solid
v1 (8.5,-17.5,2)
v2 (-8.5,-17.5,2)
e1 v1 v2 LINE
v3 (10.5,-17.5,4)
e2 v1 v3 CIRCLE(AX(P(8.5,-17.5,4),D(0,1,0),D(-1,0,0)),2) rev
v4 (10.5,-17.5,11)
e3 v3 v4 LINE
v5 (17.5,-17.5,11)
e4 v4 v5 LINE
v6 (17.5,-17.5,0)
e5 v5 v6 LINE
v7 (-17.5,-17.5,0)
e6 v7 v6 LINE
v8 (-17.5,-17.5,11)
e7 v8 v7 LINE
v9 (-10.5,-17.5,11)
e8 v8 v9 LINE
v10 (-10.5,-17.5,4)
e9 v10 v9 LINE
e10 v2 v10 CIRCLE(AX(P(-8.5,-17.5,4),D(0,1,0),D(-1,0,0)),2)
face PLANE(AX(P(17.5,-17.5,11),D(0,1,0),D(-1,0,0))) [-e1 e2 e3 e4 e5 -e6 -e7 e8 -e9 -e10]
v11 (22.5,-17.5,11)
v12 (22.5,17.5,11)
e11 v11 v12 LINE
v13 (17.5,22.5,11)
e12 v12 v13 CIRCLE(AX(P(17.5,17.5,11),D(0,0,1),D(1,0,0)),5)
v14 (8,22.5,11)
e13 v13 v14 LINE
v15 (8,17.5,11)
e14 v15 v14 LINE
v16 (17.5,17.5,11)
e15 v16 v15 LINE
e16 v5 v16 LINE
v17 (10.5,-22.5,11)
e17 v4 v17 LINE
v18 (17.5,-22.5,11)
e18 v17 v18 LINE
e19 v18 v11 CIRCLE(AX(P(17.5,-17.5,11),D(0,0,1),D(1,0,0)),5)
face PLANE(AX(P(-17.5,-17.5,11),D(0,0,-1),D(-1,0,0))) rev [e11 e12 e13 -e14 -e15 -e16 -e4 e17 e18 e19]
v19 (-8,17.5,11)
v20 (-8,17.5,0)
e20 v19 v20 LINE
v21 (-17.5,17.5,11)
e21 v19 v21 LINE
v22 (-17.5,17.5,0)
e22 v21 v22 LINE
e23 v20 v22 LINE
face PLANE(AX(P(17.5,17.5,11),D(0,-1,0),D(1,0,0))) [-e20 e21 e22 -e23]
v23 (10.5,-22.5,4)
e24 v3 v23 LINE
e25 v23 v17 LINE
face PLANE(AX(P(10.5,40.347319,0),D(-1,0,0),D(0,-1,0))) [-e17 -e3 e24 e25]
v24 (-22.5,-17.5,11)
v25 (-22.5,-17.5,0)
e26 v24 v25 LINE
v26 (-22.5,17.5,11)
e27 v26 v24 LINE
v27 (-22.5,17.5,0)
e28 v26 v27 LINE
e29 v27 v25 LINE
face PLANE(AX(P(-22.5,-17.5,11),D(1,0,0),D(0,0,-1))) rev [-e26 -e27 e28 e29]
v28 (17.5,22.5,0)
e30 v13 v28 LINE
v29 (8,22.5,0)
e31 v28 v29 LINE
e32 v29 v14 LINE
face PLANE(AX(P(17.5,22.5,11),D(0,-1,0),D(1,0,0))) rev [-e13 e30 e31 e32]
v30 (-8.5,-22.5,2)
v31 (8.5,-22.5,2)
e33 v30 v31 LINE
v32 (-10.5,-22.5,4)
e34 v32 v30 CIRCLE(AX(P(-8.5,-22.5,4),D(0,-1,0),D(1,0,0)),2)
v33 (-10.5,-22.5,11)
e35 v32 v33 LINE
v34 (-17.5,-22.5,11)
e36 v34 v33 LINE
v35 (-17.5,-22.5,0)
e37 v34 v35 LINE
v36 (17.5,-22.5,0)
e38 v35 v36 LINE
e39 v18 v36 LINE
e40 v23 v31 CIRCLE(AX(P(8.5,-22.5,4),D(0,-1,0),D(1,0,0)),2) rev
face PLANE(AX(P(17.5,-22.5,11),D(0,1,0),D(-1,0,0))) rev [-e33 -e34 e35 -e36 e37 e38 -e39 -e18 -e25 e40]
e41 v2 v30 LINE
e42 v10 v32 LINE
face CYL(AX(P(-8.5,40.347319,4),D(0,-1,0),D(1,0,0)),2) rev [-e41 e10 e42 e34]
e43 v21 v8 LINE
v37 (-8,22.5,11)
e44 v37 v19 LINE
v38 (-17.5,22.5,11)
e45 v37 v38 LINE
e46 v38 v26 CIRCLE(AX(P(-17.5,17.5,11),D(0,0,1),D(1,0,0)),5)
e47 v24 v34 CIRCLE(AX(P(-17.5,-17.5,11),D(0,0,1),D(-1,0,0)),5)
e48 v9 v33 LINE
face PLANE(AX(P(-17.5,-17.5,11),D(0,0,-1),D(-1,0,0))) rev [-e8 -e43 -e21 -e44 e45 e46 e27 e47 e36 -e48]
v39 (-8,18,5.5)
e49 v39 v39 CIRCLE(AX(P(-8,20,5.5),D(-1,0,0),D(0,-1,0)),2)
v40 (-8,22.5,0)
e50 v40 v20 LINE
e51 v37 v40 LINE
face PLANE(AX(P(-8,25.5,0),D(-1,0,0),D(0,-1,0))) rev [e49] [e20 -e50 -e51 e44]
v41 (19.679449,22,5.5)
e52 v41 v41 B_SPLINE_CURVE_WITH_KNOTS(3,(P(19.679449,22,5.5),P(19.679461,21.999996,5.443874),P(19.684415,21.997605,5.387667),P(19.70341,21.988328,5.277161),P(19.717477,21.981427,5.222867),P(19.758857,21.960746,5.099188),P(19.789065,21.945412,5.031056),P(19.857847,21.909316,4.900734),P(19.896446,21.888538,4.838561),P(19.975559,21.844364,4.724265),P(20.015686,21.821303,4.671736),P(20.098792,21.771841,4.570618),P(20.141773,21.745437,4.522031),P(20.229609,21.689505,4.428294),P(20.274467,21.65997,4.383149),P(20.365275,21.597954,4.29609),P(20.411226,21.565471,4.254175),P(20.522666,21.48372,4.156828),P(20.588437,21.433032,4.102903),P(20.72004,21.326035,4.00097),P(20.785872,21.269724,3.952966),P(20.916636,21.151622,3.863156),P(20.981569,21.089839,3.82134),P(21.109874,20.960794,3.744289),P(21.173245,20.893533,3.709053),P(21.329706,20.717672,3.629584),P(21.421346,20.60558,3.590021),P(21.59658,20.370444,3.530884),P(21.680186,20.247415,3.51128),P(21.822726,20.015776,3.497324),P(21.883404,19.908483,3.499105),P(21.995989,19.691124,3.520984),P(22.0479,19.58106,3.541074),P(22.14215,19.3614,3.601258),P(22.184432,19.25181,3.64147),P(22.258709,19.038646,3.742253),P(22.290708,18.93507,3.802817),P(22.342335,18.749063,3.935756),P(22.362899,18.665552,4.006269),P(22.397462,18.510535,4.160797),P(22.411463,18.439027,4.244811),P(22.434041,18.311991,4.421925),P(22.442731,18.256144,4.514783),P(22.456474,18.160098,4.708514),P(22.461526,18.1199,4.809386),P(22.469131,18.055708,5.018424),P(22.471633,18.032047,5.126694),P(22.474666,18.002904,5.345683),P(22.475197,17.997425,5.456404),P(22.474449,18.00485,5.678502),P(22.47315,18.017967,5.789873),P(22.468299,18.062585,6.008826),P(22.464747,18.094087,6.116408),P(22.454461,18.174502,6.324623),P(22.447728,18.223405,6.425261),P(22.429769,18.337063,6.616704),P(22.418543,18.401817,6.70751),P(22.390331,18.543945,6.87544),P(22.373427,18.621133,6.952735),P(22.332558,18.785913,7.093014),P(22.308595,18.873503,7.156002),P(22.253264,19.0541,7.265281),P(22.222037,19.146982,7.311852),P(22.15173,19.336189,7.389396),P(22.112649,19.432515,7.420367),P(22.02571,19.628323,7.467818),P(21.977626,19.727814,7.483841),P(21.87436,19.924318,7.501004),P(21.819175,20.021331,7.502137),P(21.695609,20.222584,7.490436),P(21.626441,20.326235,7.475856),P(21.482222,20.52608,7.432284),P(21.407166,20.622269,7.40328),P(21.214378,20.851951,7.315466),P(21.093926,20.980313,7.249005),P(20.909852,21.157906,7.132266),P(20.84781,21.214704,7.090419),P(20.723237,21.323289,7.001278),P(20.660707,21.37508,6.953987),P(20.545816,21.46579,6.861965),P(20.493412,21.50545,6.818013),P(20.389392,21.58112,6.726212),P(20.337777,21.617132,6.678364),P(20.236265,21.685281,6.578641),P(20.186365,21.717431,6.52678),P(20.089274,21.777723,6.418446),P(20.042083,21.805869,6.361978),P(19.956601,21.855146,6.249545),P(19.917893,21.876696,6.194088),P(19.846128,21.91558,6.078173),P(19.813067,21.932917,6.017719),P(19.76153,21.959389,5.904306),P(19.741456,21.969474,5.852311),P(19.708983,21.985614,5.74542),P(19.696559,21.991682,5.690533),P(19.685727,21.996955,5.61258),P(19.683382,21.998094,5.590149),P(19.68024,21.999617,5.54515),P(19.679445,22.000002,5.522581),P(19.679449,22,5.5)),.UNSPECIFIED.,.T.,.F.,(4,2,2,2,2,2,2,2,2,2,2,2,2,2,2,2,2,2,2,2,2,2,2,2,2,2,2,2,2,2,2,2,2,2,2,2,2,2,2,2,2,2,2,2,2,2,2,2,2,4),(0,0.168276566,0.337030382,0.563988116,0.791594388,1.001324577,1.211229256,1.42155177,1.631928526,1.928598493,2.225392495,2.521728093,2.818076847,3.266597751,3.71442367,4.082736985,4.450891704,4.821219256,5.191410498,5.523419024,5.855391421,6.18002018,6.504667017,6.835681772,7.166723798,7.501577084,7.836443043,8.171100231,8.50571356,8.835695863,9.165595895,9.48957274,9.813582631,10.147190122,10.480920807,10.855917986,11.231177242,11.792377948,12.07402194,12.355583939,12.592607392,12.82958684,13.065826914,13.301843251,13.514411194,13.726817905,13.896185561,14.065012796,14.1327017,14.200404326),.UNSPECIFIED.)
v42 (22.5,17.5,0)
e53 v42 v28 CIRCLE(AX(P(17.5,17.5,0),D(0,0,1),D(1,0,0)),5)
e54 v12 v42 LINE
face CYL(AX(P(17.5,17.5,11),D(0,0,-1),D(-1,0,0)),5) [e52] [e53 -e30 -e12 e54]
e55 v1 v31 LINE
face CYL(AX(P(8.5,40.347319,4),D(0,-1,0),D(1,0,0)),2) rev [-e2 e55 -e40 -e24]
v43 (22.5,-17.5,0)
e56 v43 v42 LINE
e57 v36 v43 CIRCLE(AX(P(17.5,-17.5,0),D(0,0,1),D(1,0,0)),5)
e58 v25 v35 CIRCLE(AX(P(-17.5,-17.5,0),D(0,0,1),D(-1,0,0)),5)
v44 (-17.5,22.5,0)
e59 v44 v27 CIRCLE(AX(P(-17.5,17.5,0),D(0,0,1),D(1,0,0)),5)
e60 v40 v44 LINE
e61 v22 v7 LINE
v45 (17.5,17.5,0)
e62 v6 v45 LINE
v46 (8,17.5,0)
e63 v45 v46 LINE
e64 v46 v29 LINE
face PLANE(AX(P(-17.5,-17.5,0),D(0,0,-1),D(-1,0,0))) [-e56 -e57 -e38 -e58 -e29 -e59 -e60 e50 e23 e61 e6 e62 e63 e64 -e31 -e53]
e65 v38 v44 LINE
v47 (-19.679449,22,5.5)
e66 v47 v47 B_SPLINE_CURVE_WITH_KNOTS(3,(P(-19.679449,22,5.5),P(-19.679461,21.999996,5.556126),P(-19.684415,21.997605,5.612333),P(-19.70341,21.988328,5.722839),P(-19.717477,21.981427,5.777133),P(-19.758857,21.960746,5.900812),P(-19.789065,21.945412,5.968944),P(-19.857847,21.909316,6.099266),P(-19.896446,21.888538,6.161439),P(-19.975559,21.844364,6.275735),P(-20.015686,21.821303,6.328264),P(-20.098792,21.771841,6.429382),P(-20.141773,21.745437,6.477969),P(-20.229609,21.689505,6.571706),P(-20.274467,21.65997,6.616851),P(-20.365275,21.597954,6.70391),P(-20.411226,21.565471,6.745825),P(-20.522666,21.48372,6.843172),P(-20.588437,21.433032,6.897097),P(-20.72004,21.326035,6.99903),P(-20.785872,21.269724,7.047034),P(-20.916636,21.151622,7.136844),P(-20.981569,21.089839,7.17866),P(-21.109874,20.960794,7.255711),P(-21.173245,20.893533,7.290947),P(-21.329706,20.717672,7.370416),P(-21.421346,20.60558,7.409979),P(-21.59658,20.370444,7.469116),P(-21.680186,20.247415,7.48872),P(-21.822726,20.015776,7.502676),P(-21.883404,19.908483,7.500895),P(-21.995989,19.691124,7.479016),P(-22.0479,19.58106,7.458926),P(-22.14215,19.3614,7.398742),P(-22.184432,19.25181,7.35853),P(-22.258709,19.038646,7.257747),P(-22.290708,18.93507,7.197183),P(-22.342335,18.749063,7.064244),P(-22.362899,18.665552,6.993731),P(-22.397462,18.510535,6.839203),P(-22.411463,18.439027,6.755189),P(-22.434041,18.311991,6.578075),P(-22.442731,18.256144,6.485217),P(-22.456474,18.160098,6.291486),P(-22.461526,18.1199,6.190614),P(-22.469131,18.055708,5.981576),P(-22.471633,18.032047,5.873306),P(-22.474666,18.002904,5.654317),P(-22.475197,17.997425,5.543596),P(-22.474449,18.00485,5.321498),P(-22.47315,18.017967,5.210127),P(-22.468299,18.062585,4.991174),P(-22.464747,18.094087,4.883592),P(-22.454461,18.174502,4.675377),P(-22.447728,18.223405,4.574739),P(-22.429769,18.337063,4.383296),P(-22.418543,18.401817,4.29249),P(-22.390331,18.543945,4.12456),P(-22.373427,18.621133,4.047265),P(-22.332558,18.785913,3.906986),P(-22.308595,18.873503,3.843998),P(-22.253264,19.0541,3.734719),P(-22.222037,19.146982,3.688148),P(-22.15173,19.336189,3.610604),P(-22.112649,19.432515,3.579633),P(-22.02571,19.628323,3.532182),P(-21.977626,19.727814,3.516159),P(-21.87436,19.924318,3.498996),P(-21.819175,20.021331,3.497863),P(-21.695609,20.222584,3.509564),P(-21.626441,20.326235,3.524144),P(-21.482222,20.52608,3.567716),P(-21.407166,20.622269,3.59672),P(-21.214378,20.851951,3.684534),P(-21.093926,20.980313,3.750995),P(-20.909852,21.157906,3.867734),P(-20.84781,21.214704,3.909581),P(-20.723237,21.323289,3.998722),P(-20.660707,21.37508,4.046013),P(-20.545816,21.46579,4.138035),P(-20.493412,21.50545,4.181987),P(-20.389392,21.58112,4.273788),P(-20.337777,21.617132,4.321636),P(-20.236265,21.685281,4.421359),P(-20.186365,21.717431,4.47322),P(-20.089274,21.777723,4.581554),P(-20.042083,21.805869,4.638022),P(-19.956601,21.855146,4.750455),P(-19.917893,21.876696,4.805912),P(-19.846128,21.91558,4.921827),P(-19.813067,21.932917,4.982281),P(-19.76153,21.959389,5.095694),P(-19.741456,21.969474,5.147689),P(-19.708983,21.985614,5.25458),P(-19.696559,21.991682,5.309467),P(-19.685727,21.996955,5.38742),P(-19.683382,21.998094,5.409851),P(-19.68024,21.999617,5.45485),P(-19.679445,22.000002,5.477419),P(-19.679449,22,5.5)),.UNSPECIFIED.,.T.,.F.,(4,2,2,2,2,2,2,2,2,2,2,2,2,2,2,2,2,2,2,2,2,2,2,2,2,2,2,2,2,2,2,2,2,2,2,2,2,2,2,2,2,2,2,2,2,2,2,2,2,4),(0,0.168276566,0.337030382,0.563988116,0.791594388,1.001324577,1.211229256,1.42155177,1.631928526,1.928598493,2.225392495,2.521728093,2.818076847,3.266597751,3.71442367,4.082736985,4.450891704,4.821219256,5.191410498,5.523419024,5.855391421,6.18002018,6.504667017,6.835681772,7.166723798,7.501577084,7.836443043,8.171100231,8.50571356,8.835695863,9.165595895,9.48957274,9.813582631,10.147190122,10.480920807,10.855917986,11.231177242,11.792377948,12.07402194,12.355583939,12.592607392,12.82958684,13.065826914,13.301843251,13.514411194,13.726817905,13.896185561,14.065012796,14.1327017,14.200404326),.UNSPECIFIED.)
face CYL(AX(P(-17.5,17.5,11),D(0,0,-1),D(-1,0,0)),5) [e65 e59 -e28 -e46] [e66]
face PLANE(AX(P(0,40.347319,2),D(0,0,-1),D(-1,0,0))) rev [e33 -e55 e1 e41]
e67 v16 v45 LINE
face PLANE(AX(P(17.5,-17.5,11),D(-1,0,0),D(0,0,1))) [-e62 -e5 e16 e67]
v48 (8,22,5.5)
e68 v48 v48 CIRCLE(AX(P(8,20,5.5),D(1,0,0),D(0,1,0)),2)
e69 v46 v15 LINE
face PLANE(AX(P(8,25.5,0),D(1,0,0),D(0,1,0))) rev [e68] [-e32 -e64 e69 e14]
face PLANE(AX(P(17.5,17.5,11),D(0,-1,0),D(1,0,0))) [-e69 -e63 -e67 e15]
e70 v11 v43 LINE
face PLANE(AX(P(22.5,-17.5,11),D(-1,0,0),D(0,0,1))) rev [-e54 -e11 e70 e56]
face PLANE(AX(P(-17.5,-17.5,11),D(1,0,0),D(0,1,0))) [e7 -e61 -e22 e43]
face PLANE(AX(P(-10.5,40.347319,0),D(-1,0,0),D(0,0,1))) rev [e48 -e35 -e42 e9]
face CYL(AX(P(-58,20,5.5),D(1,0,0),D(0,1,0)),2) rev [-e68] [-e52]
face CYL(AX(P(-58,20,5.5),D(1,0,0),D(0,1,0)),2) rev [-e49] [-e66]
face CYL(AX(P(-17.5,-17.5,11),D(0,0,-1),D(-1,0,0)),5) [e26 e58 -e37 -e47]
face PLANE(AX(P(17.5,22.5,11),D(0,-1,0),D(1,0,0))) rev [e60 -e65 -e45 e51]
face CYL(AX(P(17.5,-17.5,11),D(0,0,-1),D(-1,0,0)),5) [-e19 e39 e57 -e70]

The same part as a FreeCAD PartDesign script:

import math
import FreeCAD as App
import Part
import Sketcher

V = App.Vector


def add_polygon(sketch, points):
    """Adds a closed chain of lines whose ends are joined by coincident constraints."""
    first, n = sketch.GeometryCount, len(points)
    for a, b in zip(points, points[1:] + points[:1]):
        sketch.addGeometry(Part.LineSegment(App.Vector(*a, 0), App.Vector(*b, 0)), False)
    for i in range(n):
        sketch.addConstraint(Sketcher.Constraint("Coincident", first + i, 2, first + (i + 1) % n, 1))

doc = App.newDocument("Part")
body = doc.addObject("PartDesign::Body", "Body")

# Sketch on XY plane
sketch1 = body.newObject("Sketcher::SketchObject", "Sketch")
sketch1.AttachmentSupport = (doc.getObject("XY_Plane"), [""])
sketch1.MapMode = "FlatFace"
sketch1.addGeometry(Part.LineSegment(V(-18, -22, 0), V(18, -22, 0)), False)  # 0
sketch1.addGeometry(Part.ArcOfCircle(Part.Circle(V(18, -18, 0), V(0, 0, 1), 5), math.radians(-90), math.radians(0)), False)  # 1
sketch1.addGeometry(Part.LineSegment(V(22, -18, 0), V(22, 18, 0)), False)  # 2
sketch1.addGeometry(Part.ArcOfCircle(Part.Circle(V(18, 18, 0), V(0, 0, 1), 5), math.radians(0), math.radians(90)), False)  # 3
sketch1.addGeometry(Part.LineSegment(V(18, 22, 0), V(-18, 22, 0)), False)  # 4
sketch1.addGeometry(Part.ArcOfCircle(Part.Circle(V(-18, 18, 0), V(0, 0, 1), 5), math.radians(90), math.radians(180)), False)  # 5
sketch1.addGeometry(Part.LineSegment(V(-22, 18, 0), V(-22, -18, 0)), False)  # 6
sketch1.addGeometry(Part.ArcOfCircle(Part.Circle(V(-18, -18, 0), V(0, 0, 1), 5), math.radians(180), math.radians(270)), False)  # 7
add_polygon(sketch1, [(-18, -18), (-18, 18), (18, 18), (18, -18)])  # lines 8-11
sketch1.addConstraint([
    Sketcher.Constraint("Tangent", 0, 2, 1, 1),
    Sketcher.Constraint("Tangent", 1, 2, 2, 1),
    Sketcher.Constraint("Tangent", 2, 2, 3, 1),
    Sketcher.Constraint("Tangent", 3, 2, 4, 1),
    Sketcher.Constraint("Tangent", 4, 2, 5, 1),
    Sketcher.Constraint("Tangent", 5, 2, 6, 1),
    Sketcher.Constraint("Tangent", 6, 2, 7, 1),
    Sketcher.Constraint("Tangent", 7, 2, 0, 1),
    Sketcher.Constraint("Horizontal", 0),
    Sketcher.Constraint("Vertical", 2),
    Sketcher.Constraint("Horizontal", 4),
    Sketcher.Constraint("Vertical", 6),
    Sketcher.Constraint("Vertical", 8),
    Sketcher.Constraint("Horizontal", 9),
    Sketcher.Constraint("Vertical", 10),
    Sketcher.Constraint("Horizontal", 11),
    Sketcher.Constraint("Coincident", 8, 2, 5, 3),
    Sketcher.Constraint("Coincident", 9, 2, 3, 3),
    Sketcher.Constraint("Coincident", 10, 2, 1, 3),
    Sketcher.Constraint("Equal", 5, 7),
    Sketcher.Constraint("Symmetric", 1, 3, 5, 3, -1, 1),
    Sketcher.Constraint("Equal", 11, 2),
    Sketcher.Constraint("Radius", 1, 5.0),
    Sketcher.Constraint("DistanceX", 0, 1, 0, 2, 35.0),
])
pad1 = body.newObject("PartDesign::Pad", "Pad")
pad1.Profile = sketch1
pad1.Length = 11

# Sketch on XY plane
sketch2 = body.newObject("Sketcher::SketchObject", "Sketch001")
sketch2.AttachmentSupport = (doc.getObject("XY_Plane"), [""])
sketch2.MapMode = "FlatFace"
sketch2.AttachmentOffset = App.Placement(V(0, 0, 11), App.Rotation())
add_polygon(sketch2, [(-8, 26), (-8, 16), (8, 16), (8, 26)])  # lines 0-3
sketch2.addConstraint([
    Sketcher.Constraint("Vertical", 0),
    Sketcher.Constraint("Horizontal", 1),
    Sketcher.Constraint("Vertical", 2),
    Sketcher.Constraint("Horizontal", 3),
    Sketcher.Constraint("DistanceX", 1, 1, 1, 2, 16.0),
    Sketcher.Constraint("DistanceY", 0, 2, 0, 1, 10.0),
    Sketcher.Constraint("DistanceX", 0, 2, -1, 1, 8.0),
    Sketcher.Constraint("DistanceY", -1, 1, 0, 2, 15.5),
])
pocket1 = body.newObject("PartDesign::Pocket", "Pocket")
pocket1.Profile = sketch2
pocket1.Type = "ThroughAll"

# Sketch on YZ plane
sketch3 = body.newObject("Sketcher::SketchObject", "Sketch002")
sketch3.AttachmentSupport = (doc.getObject("YZ_Plane"), [""])
sketch3.MapMode = "FlatFace"
sketch3.AttachmentOffset = App.Placement(V(0, 0, -8), App.Rotation())
sketch3.addGeometry(Part.Circle(V(20, 5.5, 0), V(0, 0, 1), 2), False)
sketch3.addConstraint([
    Sketcher.Constraint("Diameter", 0, 4.0),
    Sketcher.Constraint("DistanceX", -1, 1, 0, 3, 20.0),
    Sketcher.Constraint("DistanceY", -1, 1, 0, 3, 5.5),
])
pocket2 = body.newObject("PartDesign::Pocket", "Pocket001")
pocket2.Profile = sketch3
pocket2.Length = 100
pocket2.Midplane = True

# Sketch on XZ plane
sketch4 = body.newObject("Sketcher::SketchObject", "Sketch003")
sketch4.AttachmentSupport = (doc.getObject("XZ_Plane"), [""])
sketch4.MapMode = "FlatFace"
sketch4.AttachmentOffset = App.Placement(V(0, 0, 22.5), App.Rotation())
sketch4.addGeometry([
    Part.LineSegment(V(10.5, 11, 0), V(-10.5, 11, 0)),  # 0
    Part.LineSegment(V(-10.5, 11, 0), V(-10.5, 4, 0)),  # 1
    Part.ArcOfCircle(Part.Circle(V(-8.5, 4, 0), V(0, 0, 1), 2), math.radians(-180), math.radians(-90)),  # 2
    Part.LineSegment(V(-8.5, 2, 0), V(8.5, 2, 0)),  # 3
    Part.ArcOfCircle(Part.Circle(V(8.5, 4, 0), V(0, 0, 1), 2), math.radians(-90), math.radians(0)),  # 4
    Part.LineSegment(V(10.5, 4, 0), V(10.5, 11, 0)),  # 5
], False)
sketch4.addConstraint([
    Sketcher.Constraint("Coincident", 0, 2, 1, 1),
    Sketcher.Constraint("Tangent", 1, 2, 2, 1),
    Sketcher.Constraint("Tangent", 2, 2, 3, 1),
    Sketcher.Constraint("Tangent", 3, 2, 4, 1),
    Sketcher.Constraint("Tangent", 4, 2, 5, 1),
    Sketcher.Constraint("Coincident", 5, 2, 0, 1),
    Sketcher.Constraint("Horizontal", 0),
    Sketcher.Constraint("Vertical", 1),
    Sketcher.Constraint("Horizontal", 3),
    Sketcher.Constraint("Vertical", 5),
    Sketcher.Constraint("Equal", 2, 4),
    Sketcher.Constraint("Radius", 2, 2.0),
    Sketcher.Constraint("DistanceX", 0, 2, 0, 1, 21.0),
    Sketcher.Constraint("DistanceY", 1, 2, 1, 1, 7.0),
    Sketcher.Constraint("DistanceY", -1, 1, 2, 3, 4.0),
    Sketcher.Constraint("DistanceX", 2, 3, -1, 1, 8.5),
])
pocket3 = body.newObject("PartDesign::Pocket", "Pocket002")
pocket3.Profile = sketch4
pocket3.Type = "TwoLengths"
pocket3.Length = 52.5
pocket3.Length2 = 40
pocket3.Reversed = True

doc.recompute()
